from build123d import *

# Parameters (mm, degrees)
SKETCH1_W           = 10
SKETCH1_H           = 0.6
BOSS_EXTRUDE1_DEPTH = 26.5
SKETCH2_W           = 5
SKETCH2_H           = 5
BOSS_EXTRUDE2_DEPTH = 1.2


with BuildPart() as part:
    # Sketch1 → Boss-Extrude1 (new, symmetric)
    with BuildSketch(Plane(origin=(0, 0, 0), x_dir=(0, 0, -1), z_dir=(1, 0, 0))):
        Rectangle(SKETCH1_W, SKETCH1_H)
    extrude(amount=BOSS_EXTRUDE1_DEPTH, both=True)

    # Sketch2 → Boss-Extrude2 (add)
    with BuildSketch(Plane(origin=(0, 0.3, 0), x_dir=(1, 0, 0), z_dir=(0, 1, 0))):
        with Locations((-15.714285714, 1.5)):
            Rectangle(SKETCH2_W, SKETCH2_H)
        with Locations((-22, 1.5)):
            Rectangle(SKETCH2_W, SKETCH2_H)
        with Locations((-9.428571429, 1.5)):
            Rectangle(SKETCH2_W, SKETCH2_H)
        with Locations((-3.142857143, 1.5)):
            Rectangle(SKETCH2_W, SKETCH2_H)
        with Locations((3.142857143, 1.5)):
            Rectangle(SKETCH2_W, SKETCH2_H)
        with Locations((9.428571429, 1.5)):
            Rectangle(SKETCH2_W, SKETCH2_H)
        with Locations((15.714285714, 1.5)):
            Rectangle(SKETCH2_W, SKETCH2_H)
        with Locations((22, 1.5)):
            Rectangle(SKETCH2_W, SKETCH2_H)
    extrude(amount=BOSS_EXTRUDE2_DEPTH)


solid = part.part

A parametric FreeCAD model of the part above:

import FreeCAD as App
import Part
import Sketcher

V = App.Vector
Q = App.Units.Quantity

doc = App.newDocument("Part")
body = doc.addObject("PartDesign::Body", "Body")

sketch1 = doc.addObject("Sketcher::SketchObject", "Sketch")
body.addObject(sketch1)
sketch1.AttachmentSupport = (doc.YZ_Plane, [""])
sketch1.MapMode = "FlatFace"
sketch1.addGeometry(Part.LineSegment(V(0.3, 5, 0), V(-0.3, 5, 0)), False)
sketch1.addGeometry(Part.LineSegment(V(-0.3, 5, 0), V(-0.3, -5, 0)), False)
sketch1.addGeometry(Part.LineSegment(V(-0.3, -5, 0), V(0.3, -5, 0)), False)
sketch1.addGeometry(Part.LineSegment(V(0.3, -5, 0), V(0.3, 5, 0)), False)
sketch1.addConstraint(Sketcher.Constraint("Coincident", 0, 2, 1, 1))
sketch1.addConstraint(Sketcher.Constraint("Coincident", 1, 2, 2, 1))
sketch1.addConstraint(Sketcher.Constraint("Coincident", 2, 2, 3, 1))
sketch1.addConstraint(Sketcher.Constraint("Coincident", 3, 2, 0, 1))
sketch1.addConstraint(Sketcher.Constraint("Horizontal", 0))
sketch1.addConstraint(Sketcher.Constraint("Vertical", 1))
sketch1.addConstraint(Sketcher.Constraint("Horizontal", 2))
sketch1.addConstraint(Sketcher.Constraint("Vertical", 3))
sketch1.addConstraint(Sketcher.Constraint("Symmetric", 0, 2, 2, 2, -1, 1))
sketch1.addConstraint(Sketcher.Constraint("DistanceY", 1, 2, 1, 1, Q("10 mm")))
sketch1.addConstraint(Sketcher.Constraint("DistanceX", 0, 2, 0, 1, Q("0.6 mm")))
pad1 = doc.addObject("PartDesign::Pad", "Pad")
body.addObject(pad1)
pad1.Profile = sketch1
pad1.Length = 53
pad1.Midplane = True

sketch2 = doc.addObject("Sketcher::SketchObject", "Sketch001")
body.addObject(sketch2)
sketch2.AttachmentSupport = (doc.XZ_Plane, [""])
sketch2.MapMode = "FlatFace"
sketch2.AttachmentOffset = App.Placement(V(0, 0, -0.3), App.Rotation())
sketch2.addGeometry(Part.LineSegment(V(-18.2, -4, 0), V(-18.2, 1, 0)), False)
sketch2.addGeometry(Part.LineSegment(V(-18.2, 1, 0), V(-13.2, 1, 0)), False)
sketch2.addGeometry(Part.LineSegment(V(-13.2, 1, 0), V(-13.2, -4, 0)), False)
sketch2.addGeometry(Part.LineSegment(V(-13.2, -4, 0), V(-18.2, -4, 0)), False)
sketch2.addGeometry(Part.LineSegment(V(-24.5, -4, 0), V(-24.5, 1, 0)), False)
sketch2.addGeometry(Part.LineSegment(V(-24.5, 1, 0), V(-19.5, 1, 0)), False)
sketch2.addGeometry(Part.LineSegment(V(-19.5, 1, 0), V(-19.5, -4, 0)), False)
sketch2.addGeometry(Part.LineSegment(V(-19.5, -4, 0), V(-24.5, -4, 0)), False)
sketch2.addGeometry(Part.LineSegment(V(-11.9, -4, 0), V(-11.9, 1, 0)), False)
sketch2.addGeometry(Part.LineSegment(V(-11.9, 1, 0), V(-6.9, 1, 0)), False)
sketch2.addGeometry(Part.LineSegment(V(-6.9, 1, 0), V(-6.9, -4, 0)), False)
sketch2.addGeometry(Part.LineSegment(V(-6.9, -4, 0), V(-11.9, -4, 0)), False)
sketch2.addGeometry(Part.LineSegment(V(-5.6, -4, 0), V(-5.6, 1, 0)), False)
sketch2.addGeometry(Part.LineSegment(V(-5.6, 1, 0), V(-0.6, 1, 0)), False)
sketch2.addGeometry(Part.LineSegment(V(-0.6, 1, 0), V(-0.6, -4, 0)), False)
sketch2.addGeometry(Part.LineSegment(V(-0.6, -4, 0), V(-5.6, -4, 0)), False)
sketch2.addGeometry(Part.LineSegment(V(0.6, -4, 0), V(0.6, 1, 0)), False)
sketch2.addGeometry(Part.LineSegment(V(0.6, 1, 0), V(5.6, 1, 0)), False)
sketch2.addGeometry(Part.LineSegment(V(5.6, 1, 0), V(5.6, -4, 0)), False)
sketch2.addGeometry(Part.LineSegment(V(5.6, -4, 0), V(0.6, -4, 0)), False)
sketch2.addGeometry(Part.LineSegment(V(6.9, -4, 0), V(6.9, 1, 0)), False)
sketch2.addGeometry(Part.LineSegment(V(6.9, 1, 0), V(11.9, 1, 0)), False)
sketch2.addGeometry(Part.LineSegment(V(11.9, 1, 0), V(11.9, -4, 0)), False)
sketch2.addGeometry(Part.LineSegment(V(11.9, -4, 0), V(6.9, -4, 0)), False)
sketch2.addGeometry(Part.LineSegment(V(13.2, -4, 0), V(13.2, 1, 0)), False)
sketch2.addGeometry(Part.LineSegment(V(13.2, 1, 0), V(18.2, 1, 0)), False)
sketch2.addGeometry(Part.LineSegment(V(18.2, 1, 0), V(18.2, -4, 0)), False)
sketch2.addGeometry(Part.LineSegment(V(18.2, -4, 0), V(13.2, -4, 0)), False)
sketch2.addGeometry(Part.LineSegment(V(19.5, -4, 0), V(19.5, 1, 0)), False)
sketch2.addGeometry(Part.LineSegment(V(19.5, 1, 0), V(24.5, 1, 0)), False)
sketch2.addGeometry(Part.LineSegment(V(24.5, 1, 0), V(24.5, -4, 0)), False)
sketch2.addGeometry(Part.LineSegment(V(24.5, -4, 0), V(19.5, -4, 0)), False)
sketch2.addConstraint(Sketcher.Constraint("Coincident", 0, 2, 1, 1))
sketch2.addConstraint(Sketcher.Constraint("Coincident", 1, 2, 2, 1))
sketch2.addConstraint(Sketcher.Constraint("Coincident", 2, 2, 3, 1))
sketch2.addConstraint(Sketcher.Constraint("Coincident", 3, 2, 0, 1))
sketch2.addConstraint(Sketcher.Constraint("Coincident", 4, 2, 5, 1))
sketch2.addConstraint(Sketcher.Constraint("Coincident", 5, 2, 6, 1))
sketch2.addConstraint(Sketcher.Constraint("Coincident", 6, 2, 7, 1))
sketch2.addConstraint(Sketcher.Constraint("Coincident", 7, 2, 4, 1))
sketch2.addConstraint(Sketcher.Constraint("Coincident", 8, 2, 9, 1))
sketch2.addConstraint(Sketcher.Constraint("Coincident", 9, 2, 10, 1))
sketch2.addConstraint(Sketcher.Constraint("Coincident", 10, 2, 11, 1))
sketch2.addConstraint(Sketcher.Constraint("Coincident", 11, 2, 8, 1))
sketch2.addConstraint(Sketcher.Constraint("Coincident", 12, 2, 13, 1))
sketch2.addConstraint(Sketcher.Constraint("Coincident", 13, 2, 14, 1))
sketch2.addConstraint(Sketcher.Constraint("Coincident", 14, 2, 15, 1))
sketch2.addConstraint(Sketcher.Constraint("Coincident", 15, 2, 12, 1))
sketch2.addConstraint(Sketcher.Constraint("Coincident", 16, 2, 17, 1))
sketch2.addConstraint(Sketcher.Constraint("Coincident", 17, 2, 18, 1))
sketch2.addConstraint(Sketcher.Constraint("Coincident", 18, 2, 19, 1))
sketch2.addConstraint(Sketcher.Constraint("Coincident", 19, 2, 16, 1))
sketch2.addConstraint(Sketcher.Constraint("Coincident", 20, 2, 21, 1))
sketch2.addConstraint(Sketcher.Constraint("Coincident", 21, 2, 22, 1))
sketch2.addConstraint(Sketcher.Constraint("Coincident", 22, 2, 23, 1))
sketch2.addConstraint(Sketcher.Constraint("Coincident", 23, 2, 20, 1))
sketch2.addConstraint(Sketcher.Constraint("Coincident", 24, 2, 25, 1))
sketch2.addConstraint(Sketcher.Constraint("Coincident", 25, 2, 26, 1))
sketch2.addConstraint(Sketcher.Constraint("Coincident", 26, 2, 27, 1))
sketch2.addConstraint(Sketcher.Constraint("Coincident", 27, 2, 24, 1))
sketch2.addConstraint(Sketcher.Constraint("Coincident", 28, 2, 29, 1))
sketch2.addConstraint(Sketcher.Constraint("Coincident", 29, 2, 30, 1))
sketch2.addConstraint(Sketcher.Constraint("Coincident", 30, 2, 31, 1))
sketch2.addConstraint(Sketcher.Constraint("Coincident", 31, 2, 28, 1))
sketch2.addConstraint(Sketcher.Constraint("Vertical", 0))
sketch2.addConstraint(Sketcher.Constraint("Horizontal", 1))
sketch2.addConstraint(Sketcher.Constraint("Vertical", 2))
sketch2.addConstraint(Sketcher.Constraint("Horizontal", 3))
sketch2.addConstraint(Sketcher.Constraint("Vertical", 4))
sketch2.addConstraint(Sketcher.Constraint("Horizontal", 5))
sketch2.addConstraint(Sketcher.Constraint("Vertical", 6))
sketch2.addConstraint(Sketcher.Constraint("Horizontal", 7))
sketch2.addConstraint(Sketcher.Constraint("Vertical", 8))
sketch2.addConstraint(Sketcher.Constraint("Horizontal", 9))
sketch2.addConstraint(Sketcher.Constraint("Vertical", 10))
sketch2.addConstraint(Sketcher.Constraint("Horizontal", 11))
sketch2.addConstraint(Sketcher.Constraint("Vertical", 12))
sketch2.addConstraint(Sketcher.Constraint("Horizontal", 13))
sketch2.addConstraint(Sketcher.Constraint("Vertical", 14))
sketch2.addConstraint(Sketcher.Constraint("Horizontal", 15))
sketch2.addConstraint(Sketcher.Constraint("Vertical", 16))
sketch2.addConstraint(Sketcher.Constraint("Horizontal", 17))
sketch2.addConstraint(Sketcher.Constraint("Vertical", 18))
sketch2.addConstraint(Sketcher.Constraint("Horizontal", 19))
sketch2.addConstraint(Sketcher.Constraint("Vertical", 20))
sketch2.addConstraint(Sketcher.Constraint("Horizontal", 21))
sketch2.addConstraint(Sketcher.Constraint("Vertical", 22))
sketch2.addConstraint(Sketcher.Constraint("Horizontal", 23))
sketch2.addConstraint(Sketcher.Constraint("Vertical", 24))
sketch2.addConstraint(Sketcher.Constraint("Horizontal", 25))
sketch2.addConstraint(Sketcher.Constraint("Vertical", 26))
sketch2.addConstraint(Sketcher.Constraint("Horizontal", 27))
sketch2.addConstraint(Sketcher.Constraint("Vertical", 28))
sketch2.addConstraint(Sketcher.Constraint("Horizontal", 29))
sketch2.addConstraint(Sketcher.Constraint("Vertical", 30))
sketch2.addConstraint(Sketcher.Constraint("Horizontal", 31))
sketch2.addConstraint(Sketcher.Constraint("Symmetric", 13, 2, 16, 2, -2))
sketch2.addConstraint(Sketcher.Constraint("Symmetric", 15, 2, 18, 2, -2))
sketch2.addConstraint(Sketcher.Constraint("Symmetric", 9, 2, 20, 2, -2))
sketch2.addConstraint(Sketcher.Constraint("Symmetric", 11, 2, 22, 2, -2))
sketch2.addConstraint(Sketcher.Constraint("Symmetric", 1, 2, 24, 2, -2))
sketch2.addConstraint(Sketcher.Constraint("Symmetric", 3, 2, 26, 2, -2))
sketch2.addConstraint(Sketcher.Constraint("Symmetric", 5, 2, 28, 2, -2))
sketch2.addConstraint(Sketcher.Constraint("Symmetric", 7, 2, 30, 2, -2))
sketch2.addConstraint(Sketcher.Constraint("Horizontal", 1, 2, 4, 2))
sketch2.addConstraint(Sketcher.Constraint("Horizontal", 3, 2, 6, 2))
sketch2.addConstraint(Sketcher.Constraint("Horizontal", 5, 2, 8, 2))
sketch2.addConstraint(Sketcher.Constraint("Horizontal", 7, 2, 10, 2))
sketch2.addConstraint(Sketcher.Constraint("Horizontal", 9, 2, 12, 2))
sketch2.addConstraint(Sketcher.Constraint("Horizontal", 11, 2, 14, 2))
sketch2.addConstraint(Sketcher.Constraint("Equal", 3, 5))
sketch2.addConstraint(Sketcher.Constraint("Equal", 7, 9))
sketch2.addConstraint(Sketcher.Constraint("Equal", 11, 13))
sketch2.addConstraint(Sketcher.Constraint("Equal", 31, 0))
sketch2.addConstraint(Sketcher.Constraint("DistanceX", 1, 1, 1, 2, Q("5 mm")))
sketch2.addConstraint(Sketcher.Constraint("DistanceY", -1, 1, 0, 2, Q("1 mm")))
sketch2.addConstraint(Sketcher.Constraint("DistanceX", 4, 2, -1, 1, Q("24.5 mm")))
sketch2.addConstraint(Sketcher.Constraint("DistanceX", 8, 2, -1, 1, Q("11.928571 mm")))
sketch2.addConstraint(Sketcher.Constraint("DistanceX", 1, 2, 12, 2, Q("7.571429 mm")))
sketch2.addConstraint(Sketcher.Constraint("DistanceX", 9, 2, 16, 2, Q("7.571429 mm")))
pad2 = doc.addObject("PartDesign::Pad", "Pad001")
body.addObject(pad2)
pad2.Profile = sketch2
pad2.Length = 1.2
pad2.Reversed = True

doc.recompute()
